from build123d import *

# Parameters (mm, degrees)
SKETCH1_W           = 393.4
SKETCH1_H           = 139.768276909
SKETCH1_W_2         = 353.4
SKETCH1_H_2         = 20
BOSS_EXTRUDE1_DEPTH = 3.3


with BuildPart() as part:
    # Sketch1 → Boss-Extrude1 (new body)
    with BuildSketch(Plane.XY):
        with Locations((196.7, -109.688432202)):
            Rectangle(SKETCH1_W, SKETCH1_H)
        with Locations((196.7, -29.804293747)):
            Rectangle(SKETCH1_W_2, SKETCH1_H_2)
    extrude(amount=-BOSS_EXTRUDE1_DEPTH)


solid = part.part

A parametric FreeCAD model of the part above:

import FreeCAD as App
import Part
import Sketcher

V = App.Vector
Q = App.Units.Quantity

doc = App.newDocument("Part")
body = doc.addObject("PartDesign::Body", "Body")

# Sketch on XY plane
sketch1 = body.newObject("Sketcher::SketchObject", "Sketch")
sketch1.AttachmentSupport = (doc.getObject("XY_Plane"), [""])
sketch1.MapMode = "FlatFace"
sketch1.addGeometry(Part.LineSegment(V(0, -39.804294, 0), V(0, -179.572571, 0)), False)
sketch1.addGeometry(Part.LineSegment(V(0, -179.572571, 0), V(393.4, -179.572571, 0)), False)
sketch1.addGeometry(Part.LineSegment(V(393.4, -179.572571, 0), V(393.4, -39.804294, 0)), False)
sketch1.addGeometry(Part.LineSegment(V(393.4, -39.804294, 0), V(373.4, -39.804294, 0)), False)
sketch1.addGeometry(Part.LineSegment(V(373.4, -39.804294, 0), V(373.4, -19.804294, 0)), False)
sketch1.addGeometry(Part.LineSegment(V(373.4, -19.804294, 0), V(20, -19.804294, 0)), False)
sketch1.addGeometry(Part.LineSegment(V(20, -19.804294, 0), V(20, -39.804294, 0)), False)
sketch1.addGeometry(Part.LineSegment(V(20, -39.804294, 0), V(0, -39.804294, 0)), False)
sketch1.addConstraint(Sketcher.Constraint("Coincident", 0, 2, 1, 1))
sketch1.addConstraint(Sketcher.Constraint("Coincident", 1, 2, 2, 1))
sketch1.addConstraint(Sketcher.Constraint("Coincident", 2, 2, 3, 1))
sketch1.addConstraint(Sketcher.Constraint("Coincident", 3, 2, 4, 1))
sketch1.addConstraint(Sketcher.Constraint("Coincident", 4, 2, 5, 1))
sketch1.addConstraint(Sketcher.Constraint("Coincident", 5, 2, 6, 1))
sketch1.addConstraint(Sketcher.Constraint("Coincident", 6, 2, 7, 1))
sketch1.addConstraint(Sketcher.Constraint("Coincident", 7, 2, 0, 1))
sketch1.addConstraint(Sketcher.Constraint("Vertical", 0))
sketch1.addConstraint(Sketcher.Constraint("Horizontal", 1))
sketch1.addConstraint(Sketcher.Constraint("Vertical", 2))
sketch1.addConstraint(Sketcher.Constraint("Horizontal", 3))
sketch1.addConstraint(Sketcher.Constraint("Vertical", 4))
sketch1.addConstraint(Sketcher.Constraint("Horizontal", 5))
sketch1.addConstraint(Sketcher.Constraint("Vertical", 6))
sketch1.addConstraint(Sketcher.Constraint("Horizontal", 7))
sketch1.addConstraint(Sketcher.Constraint("PointOnObject", 0, 2, -2))
sketch1.addConstraint(Sketcher.Constraint("Horizontal", 3, 2, 6, 2))
sketch1.addConstraint(Sketcher.Constraint("Equal", 3, 7))
sketch1.addConstraint(Sketcher.Constraint("Equal", 7, 4))
sketch1.addConstraint(Sketcher.Constraint("DistanceX", 3, 2, 3, 1, Q("20 mm")))
sketch1.addConstraint(Sketcher.Constraint("DistanceX", 1, 1, 1, 2, Q("393.4 mm")))
sketch1.addConstraint(Sketcher.Constraint("DistanceY", 0, 2, 0, 1, Q("139.768277 mm")))
sketch1.addConstraint(Sketcher.Constraint("DistanceY", 0, 2, -1, 1, Q("179.572571 mm")))
pad1 = body.newObject("PartDesign::Pad", "Pad")
pad1.Profile = sketch1
pad1.Length = 3.3
pad1.Reversed = True

doc.recompute()
